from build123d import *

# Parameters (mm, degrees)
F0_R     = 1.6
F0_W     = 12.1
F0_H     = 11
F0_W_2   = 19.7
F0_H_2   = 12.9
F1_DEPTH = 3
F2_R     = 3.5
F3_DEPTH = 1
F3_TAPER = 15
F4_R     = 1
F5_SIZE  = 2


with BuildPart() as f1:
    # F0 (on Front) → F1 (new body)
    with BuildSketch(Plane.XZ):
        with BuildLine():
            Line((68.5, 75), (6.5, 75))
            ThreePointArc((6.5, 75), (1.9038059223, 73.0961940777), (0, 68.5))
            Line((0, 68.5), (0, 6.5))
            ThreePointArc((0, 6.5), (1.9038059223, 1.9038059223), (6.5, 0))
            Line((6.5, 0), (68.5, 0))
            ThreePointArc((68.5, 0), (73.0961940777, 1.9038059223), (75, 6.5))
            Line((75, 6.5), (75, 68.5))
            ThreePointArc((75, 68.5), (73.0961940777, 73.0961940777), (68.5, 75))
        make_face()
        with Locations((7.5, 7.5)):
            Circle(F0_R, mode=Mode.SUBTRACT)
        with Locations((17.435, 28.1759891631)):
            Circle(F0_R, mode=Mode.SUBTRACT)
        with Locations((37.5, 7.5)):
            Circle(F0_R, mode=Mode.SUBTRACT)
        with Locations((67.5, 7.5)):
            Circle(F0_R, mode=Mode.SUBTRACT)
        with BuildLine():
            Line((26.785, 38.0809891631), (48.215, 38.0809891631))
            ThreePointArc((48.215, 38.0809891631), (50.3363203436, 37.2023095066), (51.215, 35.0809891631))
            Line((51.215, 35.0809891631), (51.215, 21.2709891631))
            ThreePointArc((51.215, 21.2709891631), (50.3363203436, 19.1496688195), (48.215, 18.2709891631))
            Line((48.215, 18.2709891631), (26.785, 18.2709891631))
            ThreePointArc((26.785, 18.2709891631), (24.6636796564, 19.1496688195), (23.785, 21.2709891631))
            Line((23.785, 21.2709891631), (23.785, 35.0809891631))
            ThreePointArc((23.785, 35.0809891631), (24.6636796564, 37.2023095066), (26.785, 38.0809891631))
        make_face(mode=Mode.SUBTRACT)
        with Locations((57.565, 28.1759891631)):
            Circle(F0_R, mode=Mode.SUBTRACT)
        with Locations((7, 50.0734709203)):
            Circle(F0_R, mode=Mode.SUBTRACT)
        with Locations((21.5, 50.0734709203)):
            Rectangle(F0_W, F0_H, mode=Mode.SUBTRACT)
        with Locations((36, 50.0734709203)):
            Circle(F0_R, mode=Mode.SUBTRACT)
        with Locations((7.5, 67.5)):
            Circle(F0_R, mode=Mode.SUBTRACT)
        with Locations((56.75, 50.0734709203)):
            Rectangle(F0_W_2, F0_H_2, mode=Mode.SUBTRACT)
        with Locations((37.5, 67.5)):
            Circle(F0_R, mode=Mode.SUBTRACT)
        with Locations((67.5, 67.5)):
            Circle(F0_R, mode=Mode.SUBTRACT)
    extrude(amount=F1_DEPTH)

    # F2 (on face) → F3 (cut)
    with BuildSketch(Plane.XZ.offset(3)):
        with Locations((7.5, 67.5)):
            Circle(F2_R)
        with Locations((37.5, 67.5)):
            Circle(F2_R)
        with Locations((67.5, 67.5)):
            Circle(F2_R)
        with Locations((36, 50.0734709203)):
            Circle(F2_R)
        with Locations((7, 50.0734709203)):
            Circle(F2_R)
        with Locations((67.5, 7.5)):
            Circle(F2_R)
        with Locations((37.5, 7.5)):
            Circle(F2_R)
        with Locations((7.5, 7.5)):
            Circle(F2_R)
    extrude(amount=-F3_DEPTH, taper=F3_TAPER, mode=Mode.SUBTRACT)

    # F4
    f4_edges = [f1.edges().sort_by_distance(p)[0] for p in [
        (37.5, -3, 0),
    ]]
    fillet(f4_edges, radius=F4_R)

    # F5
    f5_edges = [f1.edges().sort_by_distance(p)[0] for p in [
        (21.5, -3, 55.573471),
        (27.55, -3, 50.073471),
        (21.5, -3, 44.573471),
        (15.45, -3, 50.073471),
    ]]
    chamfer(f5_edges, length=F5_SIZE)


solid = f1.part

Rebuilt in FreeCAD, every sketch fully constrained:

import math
import FreeCAD as App
import Part
import Sketcher
from FreeCAD import Vector


def edges_at(feature, points):
    """Names of the edges that pass closest to the given points."""
    edges = feature.Shape.Edges
    near = lambda p: min(range(len(edges)), key=lambda i: edges[i].distToShape(Part.Vertex(*p))[0])
    return sorted({f"Edge{near(p) + 1}" for p in points})

doc = App.newDocument("Part")
body = doc.addObject("PartDesign::Body", "Body")

# Sketch on XZ plane
sketch1 = body.newObject("Sketcher::SketchObject", "Sketch")
sketch1.AttachmentSupport = (doc.getObject("XZ_Plane"), [""])
sketch1.MapMode = "FlatFace"
sketch1.addGeometry(Part.LineSegment(Vector(68.5, 75, 0), Vector(6.5, 75, 0)), False)
sketch1.addGeometry(Part.ArcOfCircle(Part.Circle(Vector(6.5, 68.5, 0), Vector(0, 0, 1), 6.5), math.radians(90), math.radians(180)), False)
sketch1.addGeometry(Part.LineSegment(Vector(0, 68.5, 0), Vector(0, 6.5, 0)), False)
sketch1.addGeometry(Part.ArcOfCircle(Part.Circle(Vector(6.5, 6.5, 0), Vector(0, 0, 1), 6.5), math.radians(180), math.radians(270)), False)
sketch1.addGeometry(Part.LineSegment(Vector(6.5, 0, 0), Vector(68.5, 0, 0)), False)
sketch1.addGeometry(Part.ArcOfCircle(Part.Circle(Vector(68.5, 6.5, 0), Vector(0, 0, 1), 6.5), math.radians(-90), math.radians(0)), False)
sketch1.addGeometry(Part.LineSegment(Vector(75, 6.5, 0), Vector(75, 68.5, 0)), False)
sketch1.addGeometry(Part.ArcOfCircle(Part.Circle(Vector(68.5, 68.5, 0), Vector(0, 0, 1), 6.5), math.radians(0), math.radians(90)), False)
sketch1.addGeometry(Part.Circle(Vector(7.5, 7.5, 0), Vector(0, 0, 1), 1.6), False)
sketch1.addGeometry(Part.Circle(Vector(17.4, 28.2, 0), Vector(0, 0, 1), 1.6), False)
sketch1.addGeometry(Part.Circle(Vector(37.5, 7.5, 0), Vector(0, 0, 1), 1.6), False)
sketch1.addGeometry(Part.Circle(Vector(67.5, 7.5, 0), Vector(0, 0, 1), 1.6), False)
sketch1.addGeometry(Part.ArcOfCircle(Part.Circle(Vector(26.8, 35.1, 0), Vector(0, 0, 1), 3), math.radians(90), math.radians(180)), False)
sketch1.addGeometry(Part.LineSegment(Vector(26.8, 38.1, 0), Vector(48.2, 38.1, 0)), False)
sketch1.addGeometry(Part.ArcOfCircle(Part.Circle(Vector(48.2, 35.1, 0), Vector(0, 0, 1), 3), math.radians(0), math.radians(90)), False)
sketch1.addGeometry(Part.LineSegment(Vector(51.2, 35.1, 0), Vector(51.2, 21.3, 0)), False)
sketch1.addGeometry(Part.ArcOfCircle(Part.Circle(Vector(48.2, 21.3, 0), Vector(0, 0, 1), 3), math.radians(-90), math.radians(0)), False)
sketch1.addGeometry(Part.LineSegment(Vector(48.2, 18.3, 0), Vector(26.8, 18.3, 0)), False)
sketch1.addGeometry(Part.ArcOfCircle(Part.Circle(Vector(26.8, 21.3, 0), Vector(0, 0, 1), 3), math.radians(180), math.radians(270)), False)
sketch1.addGeometry(Part.LineSegment(Vector(23.8, 21.3, 0), Vector(23.8, 35.1, 0)), False)
sketch1.addGeometry(Part.Circle(Vector(57.6, 28.2, 0), Vector(0, 0, 1), 1.6), False)
sketch1.addGeometry(Part.Circle(Vector(7, 50.1, 0), Vector(0, 0, 1), 1.6), False)
sketch1.addGeometry(Part.LineSegment(Vector(27.6, 44.6, 0), Vector(15.4, 44.6, 0)), False)
sketch1.addGeometry(Part.LineSegment(Vector(15.4, 44.6, 0), Vector(15.4, 55.6, 0)), False)
sketch1.addGeometry(Part.LineSegment(Vector(15.4, 55.6, 0), Vector(27.6, 55.6, 0)), False)
sketch1.addGeometry(Part.LineSegment(Vector(27.6, 55.6, 0), Vector(27.6, 44.6, 0)), False)
sketch1.addGeometry(Part.Circle(Vector(36, 50.1, 0), Vector(0, 0, 1), 1.6), False)
sketch1.addGeometry(Part.Circle(Vector(7.5, 67.5, 0), Vector(0, 0, 1), 1.6), False)
sketch1.addGeometry(Part.LineSegment(Vector(66.6, 43.6, 0), Vector(46.9, 43.6, 0)), False)
sketch1.addGeometry(Part.LineSegment(Vector(46.9, 43.6, 0), Vector(46.9, 56.5, 0)), False)
sketch1.addGeometry(Part.LineSegment(Vector(46.9, 56.5, 0), Vector(66.6, 56.5, 0)), False)
sketch1.addGeometry(Part.LineSegment(Vector(66.6, 56.5, 0), Vector(66.6, 43.6, 0)), False)
sketch1.addGeometry(Part.Circle(Vector(37.5, 67.5, 0), Vector(0, 0, 1), 1.6), False)
sketch1.addGeometry(Part.Circle(Vector(67.5, 67.5, 0), Vector(0, 0, 1), 1.6), False)
sketch1.addConstraint(Sketcher.Constraint("Tangent", 0, 2, 1, 1))
sketch1.addConstraint(Sketcher.Constraint("Tangent", 1, 2, 2, 1))
sketch1.addConstraint(Sketcher.Constraint("Tangent", 2, 2, 3, 1))
sketch1.addConstraint(Sketcher.Constraint("Tangent", 3, 2, 4, 1))
sketch1.addConstraint(Sketcher.Constraint("Tangent", 4, 2, 5, 1))
sketch1.addConstraint(Sketcher.Constraint("Tangent", 5, 2, 6, 1))
sketch1.addConstraint(Sketcher.Constraint("Tangent", 6, 2, 7, 1))
sketch1.addConstraint(Sketcher.Constraint("Tangent", 7, 2, 0, 1))
sketch1.addConstraint(Sketcher.Constraint("Tangent", 12, 1, 13, 1))
sketch1.addConstraint(Sketcher.Constraint("Tangent", 13, 2, 14, 2))
sketch1.addConstraint(Sketcher.Constraint("Tangent", 14, 1, 15, 1))
sketch1.addConstraint(Sketcher.Constraint("Tangent", 15, 2, 16, 2))
sketch1.addConstraint(Sketcher.Constraint("Tangent", 16, 1, 17, 1))
sketch1.addConstraint(Sketcher.Constraint("Tangent", 17, 2, 18, 2))
sketch1.addConstraint(Sketcher.Constraint("Tangent", 18, 1, 19, 1))
sketch1.addConstraint(Sketcher.Constraint("Tangent", 19, 2, 12, 2))
sketch1.addConstraint(Sketcher.Constraint("Coincident", 22, 2, 23, 1))
sketch1.addConstraint(Sketcher.Constraint("Coincident", 23, 2, 24, 1))
sketch1.addConstraint(Sketcher.Constraint("Coincident", 24, 2, 25, 1))
sketch1.addConstraint(Sketcher.Constraint("Coincident", 25, 2, 22, 1))
sketch1.addConstraint(Sketcher.Constraint("Coincident", 28, 2, 29, 1))
sketch1.addConstraint(Sketcher.Constraint("Coincident", 29, 2, 30, 1))
sketch1.addConstraint(Sketcher.Constraint("Coincident", 30, 2, 31, 1))
sketch1.addConstraint(Sketcher.Constraint("Coincident", 31, 2, 28, 1))
sketch1.addConstraint(Sketcher.Constraint("Horizontal", 0))
sketch1.addConstraint(Sketcher.Constraint("Vertical", 2))
sketch1.addConstraint(Sketcher.Constraint("Horizontal", 4))
sketch1.addConstraint(Sketcher.Constraint("Vertical", 6))
sketch1.addConstraint(Sketcher.Constraint("Horizontal", 13))
sketch1.addConstraint(Sketcher.Constraint("Vertical", 15))
sketch1.addConstraint(Sketcher.Constraint("Horizontal", 17))
sketch1.addConstraint(Sketcher.Constraint("Vertical", 19))
sketch1.addConstraint(Sketcher.Constraint("Horizontal", 22))
sketch1.addConstraint(Sketcher.Constraint("Vertical", 23))
sketch1.addConstraint(Sketcher.Constraint("Horizontal", 24))
sketch1.addConstraint(Sketcher.Constraint("Vertical", 25))
sketch1.addConstraint(Sketcher.Constraint("Horizontal", 28))
sketch1.addConstraint(Sketcher.Constraint("Vertical", 29))
sketch1.addConstraint(Sketcher.Constraint("Horizontal", 30))
sketch1.addConstraint(Sketcher.Constraint("Vertical", 31))
sketch1.addConstraint(Sketcher.Constraint("Equal", 1, 3))
sketch1.addConstraint(Sketcher.Constraint("Equal", 3, 5))
sketch1.addConstraint(Sketcher.Constraint("Equal", 5, 7))
sketch1.addConstraint(Sketcher.Constraint("Equal", 8, 9))
sketch1.addConstraint(Sketcher.Constraint("Equal", 9, 10))
sketch1.addConstraint(Sketcher.Constraint("Equal", 10, 11))
sketch1.addConstraint(Sketcher.Constraint("Equal", 12, 14))
sketch1.addConstraint(Sketcher.Constraint("Equal", 14, 16))
sketch1.addConstraint(Sketcher.Constraint("Equal", 16, 18))
sketch1.addConstraint(Sketcher.Constraint("Equal", 11, 20))
sketch1.addConstraint(Sketcher.Constraint("Equal", 20, 21))
sketch1.addConstraint(Sketcher.Constraint("Equal", 21, 26))
sketch1.addConstraint(Sketcher.Constraint("Equal", 26, 27))
sketch1.addConstraint(Sketcher.Constraint("Equal", 27, 32))
sketch1.addConstraint(Sketcher.Constraint("Equal", 32, 33))
sketch1.addConstraint(Sketcher.Constraint("PointOnObject", 1, 2, -2))
sketch1.addConstraint(Sketcher.Constraint("PointOnObject", 3, 2, -1))
sketch1.addConstraint(Sketcher.Constraint("Horizontal", 8, 3, 10, 3))
sketch1.addConstraint(Sketcher.Constraint("Horizontal", 10, 3, 11, 3))
sketch1.addConstraint(Sketcher.Constraint("Horizontal", 9, 3, 20, 3))
sketch1.addConstraint(Sketcher.Constraint("Horizontal", 21, 3, 26, 3))
sketch1.addConstraint(Sketcher.Constraint("Horizontal", 27, 3, 32, 3))
sketch1.addConstraint(Sketcher.Constraint("Horizontal", 32, 3, 33, 3))
sketch1.addConstraint(Sketcher.Constraint("Vertical", 8, 3, 27, 3))
sketch1.addConstraint(Sketcher.Constraint("Vertical", 10, 3, 32, 3))
sketch1.addConstraint(Sketcher.Constraint("Vertical", 11, 3, 33, 3))
sketch1.addConstraint(Sketcher.Constraint("Equal", 4, 2))
sketch1.addConstraint(Sketcher.Constraint("Radius", 12, 3.0))
sketch1.addConstraint(Sketcher.Constraint("Diameter", 8, 3.2))
sketch1.addConstraint(Sketcher.Constraint("Radius", 1, 6.5))
sketch1.addConstraint(Sketcher.Constraint("DistanceX", 0, 2, 0, 1, 62.0))
sketch1.addConstraint(Sketcher.Constraint("DistanceY", 23, 1, 23, 2, 11.0))
sketch1.addConstraint(Sketcher.Constraint("DistanceX", 22, 2, 22, 1, 12.1))
sketch1.addConstraint(Sketcher.Constraint("DistanceX", 28, 2, 28, 1, 19.7))
sketch1.addConstraint(Sketcher.Constraint("DistanceY", 29, 1, 29, 2, 12.9))
sketch1.addConstraint(Sketcher.Constraint("DistanceX", -1, 1, 21, 3, 7.0))
sketch1.addConstraint(Sketcher.Constraint("DistanceX", -1, 1, 26, 3, 36.0))
sketch1.addConstraint(Sketcher.Constraint("DistanceX", 3, 3, 8, 3, 1.0))
sketch1.addConstraint(Sketcher.Constraint("DistanceY", 3, 3, 8, 3, 1.0))
sketch1.addConstraint(Sketcher.Constraint("DistanceX", 8, 3, 10, 3, 30.0))
sketch1.addConstraint(Sketcher.Constraint("DistanceX", 11, 3, 5, 3, 1.0))
sketch1.addConstraint(Sketcher.Constraint("DistanceY", 27, 3, 1, 3, 1.0))
sketch1.addConstraint(Sketcher.Constraint("DistanceX", 13, 1, 13, 2, 21.43))
sketch1.addConstraint(Sketcher.Constraint("DistanceY", 15, 2, 15, 1, 13.81))
sketch1.addConstraint(Sketcher.Constraint("DistanceX", -1, 1, 28, 2, 46.9))
sketch1.addConstraint(Sketcher.Constraint("DistanceY", 22, 2, 21, 3, 5.5))
sketch1.addConstraint(Sketcher.Constraint("DistanceX", -1, 1, 22, 2, 15.45))
sketch1.addConstraint(Sketcher.Constraint("DistanceX", 9, 3, 12, 3, 9.35))
sketch1.addConstraint(Sketcher.Constraint("DistanceX", 14, 3, 20, 3, 9.35))
sketch1.addConstraint(Sketcher.Constraint("DistanceY", 28, 2, 26, 3, 6.45))
sketch1.addConstraint(Sketcher.Constraint("DistanceX", -1, 1, 9, 3, 17.435))
sketch1.addConstraint(Sketcher.Constraint("DistanceY", 9, 3, 12, 3, 6.905))
sketch1.addConstraint(Sketcher.Constraint("DistanceY", -1, 1, 9, 3, 28.175989))
sketch1.addConstraint(Sketcher.Constraint("DistanceY", -1, 1, 21, 3, 50.073471))
pad1 = body.newObject("PartDesign::Pad", "Pad")
pad1.Profile = sketch1
pad1.Length = 3

# Sketch on XZ plane
sketch2 = body.newObject("Sketcher::SketchObject", "Sketch001")
sketch2.AttachmentSupport = (doc.getObject("XZ_Plane"), [""])
sketch2.MapMode = "FlatFace"
sketch2.AttachmentOffset = App.Placement(Vector(0, 0, 3), App.Rotation())
sketch2.addGeometry(Part.Circle(Vector(7.5, 67.5, 0), Vector(0, 0, 1), 3.5), False)
sketch2.addGeometry(Part.Circle(Vector(37.5, 67.5, 0), Vector(0, 0, 1), 3.5), False)
sketch2.addGeometry(Part.Circle(Vector(67.5, 67.5, 0), Vector(0, 0, 1), 3.5), False)
sketch2.addGeometry(Part.Circle(Vector(36, 50.1, 0), Vector(0, 0, 1), 3.5), False)
sketch2.addGeometry(Part.Circle(Vector(7, 50.1, 0), Vector(0, 0, 1), 3.5), False)
sketch2.addGeometry(Part.Circle(Vector(67.5, 7.5, 0), Vector(0, 0, 1), 3.5), False)
sketch2.addGeometry(Part.Circle(Vector(37.5, 7.5, 0), Vector(0, 0, 1), 3.5), False)
sketch2.addGeometry(Part.Circle(Vector(7.5, 7.5, 0), Vector(0, 0, 1), 3.5), False)
sketch2.addConstraint(Sketcher.Constraint("Equal", 0, 1))
sketch2.addConstraint(Sketcher.Constraint("Equal", 1, 2))
sketch2.addConstraint(Sketcher.Constraint("Equal", 2, 3))
sketch2.addConstraint(Sketcher.Constraint("Equal", 3, 4))
sketch2.addConstraint(Sketcher.Constraint("Equal", 4, 5))
sketch2.addConstraint(Sketcher.Constraint("Equal", 5, 6))
sketch2.addConstraint(Sketcher.Constraint("Equal", 6, 7))
sketch2.addConstraint(Sketcher.Constraint("Horizontal", 0, 3, 1, 3))
sketch2.addConstraint(Sketcher.Constraint("Horizontal", 1, 3, 2, 3))
sketch2.addConstraint(Sketcher.Constraint("Horizontal", 3, 3, 4, 3))
sketch2.addConstraint(Sketcher.Constraint("Horizontal", 5, 3, 6, 3))
sketch2.addConstraint(Sketcher.Constraint("Horizontal", 6, 3, 7, 3))
sketch2.addConstraint(Sketcher.Constraint("Vertical", 2, 3, 5, 3))
sketch2.addConstraint(Sketcher.Constraint("Vertical", 1, 3, 6, 3))
sketch2.addConstraint(Sketcher.Constraint("Vertical", 0, 3, 7, 3))
sketch2.addConstraint(Sketcher.Constraint("Diameter", 0, 7.0))
sketch2.addConstraint(Sketcher.Constraint("DistanceX", -1, 1, 3, 3, 36.0))
sketch2.addConstraint(Sketcher.Constraint("DistanceX", -1, 1, 4, 3, 7.0))
sketch2.addConstraint(Sketcher.Constraint("DistanceX", 0, 3, 1, 3, 30.0))
sketch2.addConstraint(Sketcher.Constraint("DistanceX", 1, 3, 2, 3, 30.0))
sketch2.addConstraint(Sketcher.Constraint("DistanceY", 5, 3, 2, 3, 60.0))
sketch2.addConstraint(Sketcher.Constraint("DistanceX", -1, 1, 0, 3, 7.5))
sketch2.addConstraint(Sketcher.Constraint("DistanceY", -1, 1, 0, 3, 67.5))
sketch2.addConstraint(Sketcher.Constraint("DistanceY", -1, 1, 3, 3, 50.073471))
pocket1 = body.newObject("PartDesign::Pocket", "Pocket")
pocket1.Profile = sketch2
pocket1.Length = 1
pocket1.TaperAngle = -15
doc.recompute()

fillet = body.newObject("PartDesign::Fillet", "Fillet")
fillet.Base = (pocket1, edges_at(pocket1, [(37.5, -3, 0)]))
fillet.Radius = 1
doc.recompute()

chamfer = body.newObject("PartDesign::Chamfer", "Chamfer")
chamfer.Base = (fillet, edges_at(fillet, [
    (21.5, -3, 55.573),
    (27.55, -3, 50.073),
    (21.5, -3, 44.573),
    (15.45, -3, 50.073),
]))
chamfer.Size = 2

doc.recompute()
